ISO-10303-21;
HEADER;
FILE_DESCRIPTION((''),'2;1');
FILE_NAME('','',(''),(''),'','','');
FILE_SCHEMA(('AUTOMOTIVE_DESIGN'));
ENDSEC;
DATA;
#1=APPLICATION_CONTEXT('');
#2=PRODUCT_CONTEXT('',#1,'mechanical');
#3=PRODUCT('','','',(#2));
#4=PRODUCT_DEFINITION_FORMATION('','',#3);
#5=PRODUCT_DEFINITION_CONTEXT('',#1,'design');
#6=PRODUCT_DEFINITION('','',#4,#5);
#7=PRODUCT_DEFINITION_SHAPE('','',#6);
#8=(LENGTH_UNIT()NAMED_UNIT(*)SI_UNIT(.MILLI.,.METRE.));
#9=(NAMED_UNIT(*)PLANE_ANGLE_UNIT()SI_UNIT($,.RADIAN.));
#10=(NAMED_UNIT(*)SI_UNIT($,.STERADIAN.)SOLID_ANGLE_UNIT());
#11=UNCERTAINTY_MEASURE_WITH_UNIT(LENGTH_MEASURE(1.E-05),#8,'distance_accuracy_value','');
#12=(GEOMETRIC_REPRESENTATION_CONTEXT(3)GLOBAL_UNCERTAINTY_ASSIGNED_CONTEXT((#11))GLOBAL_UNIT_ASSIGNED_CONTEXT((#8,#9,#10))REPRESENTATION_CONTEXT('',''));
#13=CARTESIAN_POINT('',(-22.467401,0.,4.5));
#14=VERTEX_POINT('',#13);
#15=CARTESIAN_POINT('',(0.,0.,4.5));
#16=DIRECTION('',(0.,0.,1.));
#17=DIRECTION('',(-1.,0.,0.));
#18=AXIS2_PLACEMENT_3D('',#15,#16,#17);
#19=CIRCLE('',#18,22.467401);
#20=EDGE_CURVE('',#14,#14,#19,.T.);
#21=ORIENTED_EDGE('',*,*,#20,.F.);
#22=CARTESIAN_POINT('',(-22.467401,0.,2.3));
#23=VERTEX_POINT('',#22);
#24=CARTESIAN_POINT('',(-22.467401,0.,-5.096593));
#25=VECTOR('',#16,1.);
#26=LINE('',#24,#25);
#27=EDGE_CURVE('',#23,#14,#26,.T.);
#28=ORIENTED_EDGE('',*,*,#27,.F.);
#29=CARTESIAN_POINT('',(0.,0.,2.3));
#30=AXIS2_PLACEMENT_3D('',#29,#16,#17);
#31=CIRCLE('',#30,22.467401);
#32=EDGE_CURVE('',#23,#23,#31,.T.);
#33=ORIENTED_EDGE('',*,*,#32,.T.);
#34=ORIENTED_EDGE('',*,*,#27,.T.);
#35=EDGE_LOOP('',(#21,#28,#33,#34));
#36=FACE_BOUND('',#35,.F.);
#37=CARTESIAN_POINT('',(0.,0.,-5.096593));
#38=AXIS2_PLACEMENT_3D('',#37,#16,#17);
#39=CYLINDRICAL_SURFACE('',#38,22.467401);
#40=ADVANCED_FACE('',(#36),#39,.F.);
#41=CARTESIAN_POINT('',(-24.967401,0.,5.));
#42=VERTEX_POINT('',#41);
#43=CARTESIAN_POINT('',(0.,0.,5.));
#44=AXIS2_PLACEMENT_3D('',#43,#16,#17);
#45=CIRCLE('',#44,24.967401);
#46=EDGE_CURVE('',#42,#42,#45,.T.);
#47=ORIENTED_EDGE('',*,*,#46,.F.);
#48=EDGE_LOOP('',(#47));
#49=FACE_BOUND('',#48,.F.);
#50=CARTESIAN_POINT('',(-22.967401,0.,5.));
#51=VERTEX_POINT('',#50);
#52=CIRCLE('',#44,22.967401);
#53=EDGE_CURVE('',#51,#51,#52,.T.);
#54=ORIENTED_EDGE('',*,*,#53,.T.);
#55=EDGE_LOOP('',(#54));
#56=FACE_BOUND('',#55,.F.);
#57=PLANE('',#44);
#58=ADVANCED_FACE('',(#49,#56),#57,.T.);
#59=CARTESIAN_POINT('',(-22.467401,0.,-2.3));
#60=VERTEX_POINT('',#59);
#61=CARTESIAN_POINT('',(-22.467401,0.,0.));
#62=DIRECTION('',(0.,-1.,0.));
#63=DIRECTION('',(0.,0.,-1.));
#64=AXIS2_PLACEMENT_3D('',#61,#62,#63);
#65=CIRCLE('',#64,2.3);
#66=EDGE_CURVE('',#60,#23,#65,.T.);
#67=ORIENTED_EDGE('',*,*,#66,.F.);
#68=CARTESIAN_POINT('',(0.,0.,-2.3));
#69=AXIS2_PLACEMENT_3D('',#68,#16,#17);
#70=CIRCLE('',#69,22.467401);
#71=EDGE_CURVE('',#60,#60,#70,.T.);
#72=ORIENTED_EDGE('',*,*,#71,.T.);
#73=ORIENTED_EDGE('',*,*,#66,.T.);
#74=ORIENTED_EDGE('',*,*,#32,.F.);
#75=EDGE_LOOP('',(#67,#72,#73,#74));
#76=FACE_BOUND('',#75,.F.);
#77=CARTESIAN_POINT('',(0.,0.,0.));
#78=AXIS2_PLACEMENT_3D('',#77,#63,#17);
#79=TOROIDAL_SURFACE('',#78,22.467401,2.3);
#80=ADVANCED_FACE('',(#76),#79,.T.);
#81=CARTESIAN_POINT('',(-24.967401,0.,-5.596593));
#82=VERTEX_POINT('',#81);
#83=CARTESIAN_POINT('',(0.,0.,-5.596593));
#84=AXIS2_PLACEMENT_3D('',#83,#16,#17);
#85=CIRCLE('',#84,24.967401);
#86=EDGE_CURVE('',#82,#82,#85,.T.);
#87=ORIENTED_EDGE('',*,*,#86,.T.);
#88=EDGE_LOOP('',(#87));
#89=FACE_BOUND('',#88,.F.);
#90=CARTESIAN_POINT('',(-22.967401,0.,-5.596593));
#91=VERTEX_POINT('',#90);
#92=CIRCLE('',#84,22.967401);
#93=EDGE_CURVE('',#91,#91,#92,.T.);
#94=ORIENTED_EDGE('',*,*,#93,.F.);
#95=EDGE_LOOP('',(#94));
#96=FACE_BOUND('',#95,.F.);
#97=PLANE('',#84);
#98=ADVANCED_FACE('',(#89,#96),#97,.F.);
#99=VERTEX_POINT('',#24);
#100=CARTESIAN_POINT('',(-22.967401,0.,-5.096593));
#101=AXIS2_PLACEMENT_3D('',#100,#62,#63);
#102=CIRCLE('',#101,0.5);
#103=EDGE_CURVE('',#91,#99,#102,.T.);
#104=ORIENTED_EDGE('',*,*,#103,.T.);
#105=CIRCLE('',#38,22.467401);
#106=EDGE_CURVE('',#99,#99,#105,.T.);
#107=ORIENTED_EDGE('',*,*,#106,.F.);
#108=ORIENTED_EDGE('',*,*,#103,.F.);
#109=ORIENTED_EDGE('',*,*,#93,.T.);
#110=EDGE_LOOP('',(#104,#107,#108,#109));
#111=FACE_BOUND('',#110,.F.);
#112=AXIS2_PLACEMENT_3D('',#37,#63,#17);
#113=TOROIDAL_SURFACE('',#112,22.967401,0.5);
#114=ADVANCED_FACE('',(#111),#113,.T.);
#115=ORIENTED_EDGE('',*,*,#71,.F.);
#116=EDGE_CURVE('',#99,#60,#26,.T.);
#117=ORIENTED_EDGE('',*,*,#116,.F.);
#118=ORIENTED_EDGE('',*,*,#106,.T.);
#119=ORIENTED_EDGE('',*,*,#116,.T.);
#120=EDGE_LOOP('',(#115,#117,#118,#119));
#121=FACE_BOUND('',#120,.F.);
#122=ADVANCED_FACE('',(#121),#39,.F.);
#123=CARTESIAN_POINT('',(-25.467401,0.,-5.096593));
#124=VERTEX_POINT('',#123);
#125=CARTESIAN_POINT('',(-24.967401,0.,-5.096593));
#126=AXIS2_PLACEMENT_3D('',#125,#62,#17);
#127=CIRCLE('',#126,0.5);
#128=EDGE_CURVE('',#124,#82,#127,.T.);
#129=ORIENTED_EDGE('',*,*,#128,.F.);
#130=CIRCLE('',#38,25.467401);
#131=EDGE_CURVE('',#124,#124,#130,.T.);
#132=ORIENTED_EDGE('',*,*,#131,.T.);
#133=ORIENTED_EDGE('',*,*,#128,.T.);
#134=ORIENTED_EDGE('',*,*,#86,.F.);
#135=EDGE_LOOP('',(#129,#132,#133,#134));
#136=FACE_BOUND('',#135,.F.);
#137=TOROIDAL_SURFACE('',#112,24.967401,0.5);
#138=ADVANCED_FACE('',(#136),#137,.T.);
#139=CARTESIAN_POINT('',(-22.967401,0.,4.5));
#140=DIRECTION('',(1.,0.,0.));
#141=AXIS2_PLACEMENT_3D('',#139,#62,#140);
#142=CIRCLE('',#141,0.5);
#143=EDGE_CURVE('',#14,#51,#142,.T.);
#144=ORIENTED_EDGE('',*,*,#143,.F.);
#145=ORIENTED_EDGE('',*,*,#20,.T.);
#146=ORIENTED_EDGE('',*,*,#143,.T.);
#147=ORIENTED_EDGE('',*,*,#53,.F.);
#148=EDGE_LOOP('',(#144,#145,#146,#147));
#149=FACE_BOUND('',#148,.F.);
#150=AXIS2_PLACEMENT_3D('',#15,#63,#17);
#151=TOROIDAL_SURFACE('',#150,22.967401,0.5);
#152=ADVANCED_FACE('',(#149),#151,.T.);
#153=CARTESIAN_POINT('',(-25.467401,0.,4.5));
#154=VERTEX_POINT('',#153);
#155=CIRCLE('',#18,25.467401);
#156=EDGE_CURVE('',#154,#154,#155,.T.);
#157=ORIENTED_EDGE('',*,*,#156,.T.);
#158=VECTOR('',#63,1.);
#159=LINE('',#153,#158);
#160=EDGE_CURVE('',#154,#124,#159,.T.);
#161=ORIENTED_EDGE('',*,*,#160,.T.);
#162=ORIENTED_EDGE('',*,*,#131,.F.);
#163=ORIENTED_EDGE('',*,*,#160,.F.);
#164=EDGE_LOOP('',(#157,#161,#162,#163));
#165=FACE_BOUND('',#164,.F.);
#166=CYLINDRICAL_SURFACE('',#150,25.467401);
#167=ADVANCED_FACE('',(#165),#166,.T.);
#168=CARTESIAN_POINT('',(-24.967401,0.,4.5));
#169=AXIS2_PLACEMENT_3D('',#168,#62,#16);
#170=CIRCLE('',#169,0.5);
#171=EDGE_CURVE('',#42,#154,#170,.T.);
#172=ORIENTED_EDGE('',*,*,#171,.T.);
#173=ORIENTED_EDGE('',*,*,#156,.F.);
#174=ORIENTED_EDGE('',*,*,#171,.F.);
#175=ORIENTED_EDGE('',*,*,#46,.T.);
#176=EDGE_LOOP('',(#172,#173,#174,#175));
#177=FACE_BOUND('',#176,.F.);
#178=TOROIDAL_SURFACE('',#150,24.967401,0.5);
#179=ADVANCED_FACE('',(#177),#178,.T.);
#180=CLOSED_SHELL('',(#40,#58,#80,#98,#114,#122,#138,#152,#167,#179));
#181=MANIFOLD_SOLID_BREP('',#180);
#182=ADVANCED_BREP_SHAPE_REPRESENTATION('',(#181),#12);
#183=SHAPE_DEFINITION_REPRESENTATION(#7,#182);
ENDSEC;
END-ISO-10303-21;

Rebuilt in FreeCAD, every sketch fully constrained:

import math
import FreeCAD as App
import Part
import Sketcher

V = App.Vector

doc = App.newDocument("Part")
body = doc.addObject("PartDesign::Body", "Body")

# Sketch on XZ plane
sketch1 = doc.addObject("Sketcher::SketchObject", "Sketch")
body.addObject(sketch1)
sketch1.AttachmentSupport = (doc.XZ_Plane, [""])
sketch1.MapMode = "FlatFace"
sketch1.addGeometry(Part.ArcOfCircle(Part.Circle(V(-22.5, 0, 0), V(0, 0, 1), 2.3), math.radians(-90), math.radians(90)), False)
sketch1.addGeometry(Part.LineSegment(V(-22.5, 2.3, 0), V(-22.5, 4.5, 0)), False)
sketch1.addGeometry(Part.ArcOfCircle(Part.Circle(V(-23, 4.5, 0), V(0, 0, 1), 0.5), math.radians(0), math.radians(90)), False)
sketch1.addGeometry(Part.LineSegment(V(-23, 5, 0), V(-25, 5, 0)), False)
sketch1.addGeometry(Part.ArcOfCircle(Part.Circle(V(-25, 4.5, 0), V(0, 0, 1), 0.5), math.radians(90), math.radians(180)), False)
sketch1.addGeometry(Part.LineSegment(V(-25.5, 4.5, 0), V(-25.5, -5.1, 0)), False)
sketch1.addGeometry(Part.ArcOfCircle(Part.Circle(V(-25, -5.1, 0), V(0, 0, 1), 0.5), math.radians(180), math.radians(270)), False)
sketch1.addGeometry(Part.LineSegment(V(-25, -5.6, 0), V(-23, -5.6, 0)), False)
sketch1.addGeometry(Part.ArcOfCircle(Part.Circle(V(-23, -5.1, 0), V(0, 0, 1), 0.5), math.radians(-90), math.radians(0)), False)
sketch1.addGeometry(Part.LineSegment(V(-22.5, -5.1, 0), V(-22.5, -2.3, 0)), False)
sketch1.addConstraint(Sketcher.Constraint("Coincident", 0, 2, 1, 1))
sketch1.addConstraint(Sketcher.Constraint("Tangent", 1, 2, 2, 1))
sketch1.addConstraint(Sketcher.Constraint("Tangent", 2, 2, 3, 1))
sketch1.addConstraint(Sketcher.Constraint("Tangent", 3, 2, 4, 1))
sketch1.addConstraint(Sketcher.Constraint("Tangent", 4, 2, 5, 1))
sketch1.addConstraint(Sketcher.Constraint("Tangent", 5, 2, 6, 1))
sketch1.addConstraint(Sketcher.Constraint("Tangent", 6, 2, 7, 1))
sketch1.addConstraint(Sketcher.Constraint("Tangent", 7, 2, 8, 1))
sketch1.addConstraint(Sketcher.Constraint("Tangent", 8, 2, 9, 1))
sketch1.addConstraint(Sketcher.Constraint("Coincident", 9, 2, 0, 1))
sketch1.addConstraint(Sketcher.Constraint("Vertical", 1))
sketch1.addConstraint(Sketcher.Constraint("Horizontal", 3))
sketch1.addConstraint(Sketcher.Constraint("Vertical", 5))
sketch1.addConstraint(Sketcher.Constraint("Horizontal", 7))
sketch1.addConstraint(Sketcher.Constraint("Vertical", 9))
sketch1.addConstraint(Sketcher.Constraint("Equal", 2, 4))
sketch1.addConstraint(Sketcher.Constraint("Equal", 4, 6))
sketch1.addConstraint(Sketcher.Constraint("Equal", 6, 8))
sketch1.addConstraint(Sketcher.Constraint("Symmetric", 0, 2, 9, 2, -1))
sketch1.addConstraint(Sketcher.Constraint("Radius", 0, 2.3))
sketch1.addConstraint(Sketcher.Constraint("Radius", 2, 0.5))
sketch1.addConstraint(Sketcher.Constraint("DistanceX", 3, 2, 3, 1, 2.0))
sketch1.addConstraint(Sketcher.Constraint("DistanceY", 1, 1, 1, 2, 2.2))
sketch1.addConstraint(Sketcher.Constraint("DistanceX", 5, 2, 0, 3, 3.0))
sketch1.addConstraint(Sketcher.Constraint("DistanceX", 0, 3, -1, 1, 22.467401))
sketch1.addConstraint(Sketcher.Constraint("DistanceY", 5, 2, 5, 1, 9.596593))
revolution = doc.addObject("PartDesign::Revolution", "Revolution")
body.addObject(revolution)
revolution.Profile = sketch1
revolution.ReferenceAxis = (sketch1, ["V_Axis"])
revolution.Angle = 360

doc.recompute()
